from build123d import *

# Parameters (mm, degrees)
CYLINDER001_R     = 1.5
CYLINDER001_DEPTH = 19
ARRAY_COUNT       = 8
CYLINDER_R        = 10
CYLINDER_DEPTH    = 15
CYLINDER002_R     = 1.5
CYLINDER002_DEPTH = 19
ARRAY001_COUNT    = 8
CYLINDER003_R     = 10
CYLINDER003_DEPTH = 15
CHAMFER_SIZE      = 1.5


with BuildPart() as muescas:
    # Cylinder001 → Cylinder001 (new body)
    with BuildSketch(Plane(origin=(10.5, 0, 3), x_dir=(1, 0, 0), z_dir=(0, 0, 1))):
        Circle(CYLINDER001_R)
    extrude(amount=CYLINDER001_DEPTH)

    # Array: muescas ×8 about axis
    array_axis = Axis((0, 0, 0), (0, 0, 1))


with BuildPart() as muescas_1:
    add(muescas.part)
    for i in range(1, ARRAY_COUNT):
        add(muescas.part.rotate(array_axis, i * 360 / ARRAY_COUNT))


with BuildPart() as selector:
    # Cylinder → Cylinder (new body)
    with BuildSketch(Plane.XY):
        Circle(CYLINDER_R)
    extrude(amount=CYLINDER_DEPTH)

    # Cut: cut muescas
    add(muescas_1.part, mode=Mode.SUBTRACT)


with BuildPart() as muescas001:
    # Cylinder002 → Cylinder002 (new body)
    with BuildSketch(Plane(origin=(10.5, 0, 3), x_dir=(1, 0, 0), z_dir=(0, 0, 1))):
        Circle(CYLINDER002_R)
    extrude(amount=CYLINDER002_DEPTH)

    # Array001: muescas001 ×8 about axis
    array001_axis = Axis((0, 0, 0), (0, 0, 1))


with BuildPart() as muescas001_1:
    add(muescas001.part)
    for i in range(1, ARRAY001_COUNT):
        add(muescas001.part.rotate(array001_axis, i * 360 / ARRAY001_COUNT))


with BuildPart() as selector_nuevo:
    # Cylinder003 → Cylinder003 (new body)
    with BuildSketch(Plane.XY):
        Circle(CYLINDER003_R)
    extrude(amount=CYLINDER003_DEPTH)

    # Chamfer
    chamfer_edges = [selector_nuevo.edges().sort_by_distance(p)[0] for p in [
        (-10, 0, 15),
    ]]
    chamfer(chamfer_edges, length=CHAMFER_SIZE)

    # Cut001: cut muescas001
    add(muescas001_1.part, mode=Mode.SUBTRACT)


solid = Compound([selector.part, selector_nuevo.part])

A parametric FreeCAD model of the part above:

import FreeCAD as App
import Part
import Sketcher
from FreeCAD import Vector


def edges_at(feature, points):
    """Names of the edges that pass closest to the given points."""
    edges = feature.Shape.Edges
    near = lambda p: min(range(len(edges)), key=lambda i: edges[i].distToShape(Part.Vertex(*p))[0])
    return sorted({f"Edge{near(p) + 1}" for p in points})

doc = App.newDocument("Part")
params = doc.addObject("Spreadsheet::Sheet", "Params")
for row, (alias, value) in enumerate([
    ("sketch1_diameter", "3 mm"),
    ("pad1_length", "19 mm"),
    ("sketch2_diameter", "20 mm"),
    ("pad2_length", "15 mm"),
    ("sketch3_diameter", "3 mm"),
    ("pad3_length", "19 mm"),
    ("sketch4_diameter", "20 mm"),
    ("pad4_length", "15 mm"),
    ("chamfer_size", "1.5 mm"),
], start=1):
    params.set(f"A{row}", alias)
    params.set(f"B{row}", "=" + value)
    params.setAlias(f"B{row}", alias)

body = doc.addObject("PartDesign::Body", "Body")

# Sketch on XY plane
sketch1 = body.newObject("Sketcher::SketchObject", "Sketch")
sketch1.AttachmentSupport = (doc.getObject("XY_Plane"), [""])
sketch1.MapMode = "FlatFace"
sketch1.AttachmentOffset = App.Placement(Vector(0, 0, 3), App.Rotation())
sketch1.addGeometry(Part.Circle(Vector(10.5, 0, 0), Vector(0, 0, 1), 1.5), False)
sketch1.addConstraint([
    Sketcher.Constraint("PointOnObject", 0, 3, -1),
    Sketcher.Constraint("Diameter", 0, 3.0),
    Sketcher.Constraint("DistanceX", -1, 1, 0, 3, 10.5),
])
sketch1.setExpression("Constraints[1]", "Params.sketch1_diameter")
pad1 = body.newObject("PartDesign::Pad", "Pad")
pad1.Profile = sketch1
pad1.setExpression("Length", "Params.pad1_length")
body2 = doc.addObject("PartDesign::Body", "Body001")
body2.AllowCompound = True
doc.recompute()

body2.BaseFeature = body
doc.recompute()

body3 = doc.addObject("PartDesign::Body", "Body002")
body3.BaseFeature = body
body3.Placement = App.Placement(Vector(0, 0, 0), App.Rotation(Vector(0, 0, 1), 45))
boolean = body2.newObject("PartDesign::Boolean", "Boolean")
boolean.Type = "Fuse"
boolean.addObjects([body3])
doc.recompute()

body4 = doc.addObject("PartDesign::Body", "Body003")
body4.BaseFeature = body
body4.Placement = App.Placement(Vector(0, 0, 0), App.Rotation(Vector(0, 0, 1), 90))
boolean2 = body2.newObject("PartDesign::Boolean", "Boolean001")
boolean2.Type = "Fuse"
boolean2.addObjects([body4])
doc.recompute()

body5 = doc.addObject("PartDesign::Body", "Body004")
body5.BaseFeature = body
body5.Placement = App.Placement(Vector(0, 0, 0), App.Rotation(Vector(0, 0, 1), 135))
boolean3 = body2.newObject("PartDesign::Boolean", "Boolean002")
boolean3.Type = "Fuse"
boolean3.addObjects([body5])
doc.recompute()

body6 = doc.addObject("PartDesign::Body", "Body005")
body6.BaseFeature = body
body6.Placement = App.Placement(Vector(0, 0, 0), App.Rotation(Vector(0, 0, 1), 180))
boolean4 = body2.newObject("PartDesign::Boolean", "Boolean003")
boolean4.Type = "Fuse"
boolean4.addObjects([body6])
doc.recompute()

body7 = doc.addObject("PartDesign::Body", "Body006")
body7.BaseFeature = body
body7.Placement = App.Placement(Vector(0, 0, 0), App.Rotation(Vector(0, 0, 1), 225))
boolean5 = body2.newObject("PartDesign::Boolean", "Boolean004")
boolean5.Type = "Fuse"
boolean5.addObjects([body7])
doc.recompute()

body8 = doc.addObject("PartDesign::Body", "Body007")
body8.BaseFeature = body
body8.Placement = App.Placement(Vector(0, 0, 0), App.Rotation(Vector(0, 0, 1), 270))
boolean6 = body2.newObject("PartDesign::Boolean", "Boolean005")
boolean6.Type = "Fuse"
boolean6.addObjects([body8])
doc.recompute()

body.Placement = App.Placement(Vector(0, 0, 0), App.Rotation(Vector(0, 0, 1), 315))
boolean7 = body2.newObject("PartDesign::Boolean", "Boolean006")
boolean7.Type = "Fuse"
boolean7.addObjects([body])
body9 = doc.addObject("PartDesign::Body", "Body008")

# Sketch on XY plane
sketch2 = body9.newObject("Sketcher::SketchObject", "Sketch001")
sketch2.AttachmentSupport = (doc.getObject("XY_Plane008"), [""])
sketch2.MapMode = "FlatFace"
sketch2.addGeometry(Part.Circle(Vector(0, 0, 0), Vector(0, 0, 1), 10), False)
sketch2.addConstraint([
    Sketcher.Constraint("Coincident", 0, 3, -1, 1),
    Sketcher.Constraint("Diameter", 0, 20.0),
])
sketch2.setExpression("Constraints[1]", "Params.sketch2_diameter")
pad2 = body9.newObject("PartDesign::Pad", "Pad001")
pad2.Profile = sketch2
pad2.setExpression("Length", "Params.pad2_length")
doc.recompute()

boolean8 = body9.newObject("PartDesign::Boolean", "Boolean007")
boolean8.Type = "Cut"
boolean8.addObjects([body2])
body10 = doc.addObject("PartDesign::Body", "Body009")

# Sketch on XY plane
sketch3 = body10.newObject("Sketcher::SketchObject", "Sketch002")
sketch3.AttachmentSupport = (doc.getObject("XY_Plane009"), [""])
sketch3.MapMode = "FlatFace"
sketch3.AttachmentOffset = App.Placement(Vector(0, 0, 3), App.Rotation())
sketch3.addGeometry(Part.Circle(Vector(10.5, 0, 0), Vector(0, 0, 1), 1.5), False)
sketch3.addConstraint([
    Sketcher.Constraint("PointOnObject", 0, 3, -1),
    Sketcher.Constraint("Diameter", 0, 3.0),
    Sketcher.Constraint("DistanceX", -1, 1, 0, 3, 10.5),
])
sketch3.setExpression("Constraints[1]", "Params.sketch3_diameter")
pad3 = body10.newObject("PartDesign::Pad", "Pad002")
pad3.Profile = sketch3
pad3.setExpression("Length", "Params.pad3_length")
body11 = doc.addObject("PartDesign::Body", "Body010")
body11.AllowCompound = True
doc.recompute()

body11.BaseFeature = body10
doc.recompute()

body12 = doc.addObject("PartDesign::Body", "Body011")
body12.BaseFeature = body10
body12.Placement = App.Placement(Vector(0, 0, 0), App.Rotation(Vector(0, 0, 1), 45))
boolean9 = body11.newObject("PartDesign::Boolean", "Boolean008")
boolean9.Type = "Fuse"
boolean9.addObjects([body12])
doc.recompute()

body13 = doc.addObject("PartDesign::Body", "Body012")
body13.BaseFeature = body10
body13.Placement = App.Placement(Vector(0, 0, 0), App.Rotation(Vector(0, 0, 1), 90))
boolean10 = body11.newObject("PartDesign::Boolean", "Boolean009")
boolean10.Type = "Fuse"
boolean10.addObjects([body13])
doc.recompute()

body14 = doc.addObject("PartDesign::Body", "Body013")
body14.BaseFeature = body10
body14.Placement = App.Placement(Vector(0, 0, 0), App.Rotation(Vector(0, 0, 1), 135))
boolean11 = body11.newObject("PartDesign::Boolean", "Boolean010")
boolean11.Type = "Fuse"
boolean11.addObjects([body14])
doc.recompute()

body15 = doc.addObject("PartDesign::Body", "Body014")
body15.BaseFeature = body10
body15.Placement = App.Placement(Vector(0, 0, 0), App.Rotation(Vector(0, 0, 1), 180))
boolean12 = body11.newObject("PartDesign::Boolean", "Boolean011")
boolean12.Type = "Fuse"
boolean12.addObjects([body15])
doc.recompute()

body16 = doc.addObject("PartDesign::Body", "Body015")
body16.BaseFeature = body10
body16.Placement = App.Placement(Vector(0, 0, 0), App.Rotation(Vector(0, 0, 1), 225))
boolean13 = body11.newObject("PartDesign::Boolean", "Boolean012")
boolean13.Type = "Fuse"
boolean13.addObjects([body16])
doc.recompute()

body17 = doc.addObject("PartDesign::Body", "Body016")
body17.BaseFeature = body10
body17.Placement = App.Placement(Vector(0, 0, 0), App.Rotation(Vector(0, 0, 1), 270))
boolean14 = body11.newObject("PartDesign::Boolean", "Boolean013")
boolean14.Type = "Fuse"
boolean14.addObjects([body17])
doc.recompute()

body10.Placement = App.Placement(Vector(0, 0, 0), App.Rotation(Vector(0, 0, 1), 315))
boolean15 = body11.newObject("PartDesign::Boolean", "Boolean014")
boolean15.Type = "Fuse"
boolean15.addObjects([body10])
body18 = doc.addObject("PartDesign::Body", "Body017")

# Sketch on XY plane
sketch4 = body18.newObject("Sketcher::SketchObject", "Sketch003")
sketch4.AttachmentSupport = (doc.getObject("XY_Plane017"), [""])
sketch4.MapMode = "FlatFace"
sketch4.addGeometry(Part.Circle(Vector(0, 0, 0), Vector(0, 0, 1), 10), False)
sketch4.addConstraint([
    Sketcher.Constraint("Coincident", 0, 3, -1, 1),
    Sketcher.Constraint("Diameter", 0, 20.0),
])
sketch4.setExpression("Constraints[1]", "Params.sketch4_diameter")
pad4 = body18.newObject("PartDesign::Pad", "Pad003")
pad4.Profile = sketch4
pad4.setExpression("Length", "Params.pad4_length")
doc.recompute()

chamfer = body18.newObject("PartDesign::Chamfer", "Chamfer")
chamfer.Base = (pad4, edges_at(pad4, [(-10, 0, 15)]))
chamfer.setExpression("Size", "Params.chamfer_size")
doc.recompute()

boolean16 = body18.newObject("PartDesign::Boolean", "Boolean015")
boolean16.Type = "Cut"
boolean16.addObjects([body11])

doc.recompute()
